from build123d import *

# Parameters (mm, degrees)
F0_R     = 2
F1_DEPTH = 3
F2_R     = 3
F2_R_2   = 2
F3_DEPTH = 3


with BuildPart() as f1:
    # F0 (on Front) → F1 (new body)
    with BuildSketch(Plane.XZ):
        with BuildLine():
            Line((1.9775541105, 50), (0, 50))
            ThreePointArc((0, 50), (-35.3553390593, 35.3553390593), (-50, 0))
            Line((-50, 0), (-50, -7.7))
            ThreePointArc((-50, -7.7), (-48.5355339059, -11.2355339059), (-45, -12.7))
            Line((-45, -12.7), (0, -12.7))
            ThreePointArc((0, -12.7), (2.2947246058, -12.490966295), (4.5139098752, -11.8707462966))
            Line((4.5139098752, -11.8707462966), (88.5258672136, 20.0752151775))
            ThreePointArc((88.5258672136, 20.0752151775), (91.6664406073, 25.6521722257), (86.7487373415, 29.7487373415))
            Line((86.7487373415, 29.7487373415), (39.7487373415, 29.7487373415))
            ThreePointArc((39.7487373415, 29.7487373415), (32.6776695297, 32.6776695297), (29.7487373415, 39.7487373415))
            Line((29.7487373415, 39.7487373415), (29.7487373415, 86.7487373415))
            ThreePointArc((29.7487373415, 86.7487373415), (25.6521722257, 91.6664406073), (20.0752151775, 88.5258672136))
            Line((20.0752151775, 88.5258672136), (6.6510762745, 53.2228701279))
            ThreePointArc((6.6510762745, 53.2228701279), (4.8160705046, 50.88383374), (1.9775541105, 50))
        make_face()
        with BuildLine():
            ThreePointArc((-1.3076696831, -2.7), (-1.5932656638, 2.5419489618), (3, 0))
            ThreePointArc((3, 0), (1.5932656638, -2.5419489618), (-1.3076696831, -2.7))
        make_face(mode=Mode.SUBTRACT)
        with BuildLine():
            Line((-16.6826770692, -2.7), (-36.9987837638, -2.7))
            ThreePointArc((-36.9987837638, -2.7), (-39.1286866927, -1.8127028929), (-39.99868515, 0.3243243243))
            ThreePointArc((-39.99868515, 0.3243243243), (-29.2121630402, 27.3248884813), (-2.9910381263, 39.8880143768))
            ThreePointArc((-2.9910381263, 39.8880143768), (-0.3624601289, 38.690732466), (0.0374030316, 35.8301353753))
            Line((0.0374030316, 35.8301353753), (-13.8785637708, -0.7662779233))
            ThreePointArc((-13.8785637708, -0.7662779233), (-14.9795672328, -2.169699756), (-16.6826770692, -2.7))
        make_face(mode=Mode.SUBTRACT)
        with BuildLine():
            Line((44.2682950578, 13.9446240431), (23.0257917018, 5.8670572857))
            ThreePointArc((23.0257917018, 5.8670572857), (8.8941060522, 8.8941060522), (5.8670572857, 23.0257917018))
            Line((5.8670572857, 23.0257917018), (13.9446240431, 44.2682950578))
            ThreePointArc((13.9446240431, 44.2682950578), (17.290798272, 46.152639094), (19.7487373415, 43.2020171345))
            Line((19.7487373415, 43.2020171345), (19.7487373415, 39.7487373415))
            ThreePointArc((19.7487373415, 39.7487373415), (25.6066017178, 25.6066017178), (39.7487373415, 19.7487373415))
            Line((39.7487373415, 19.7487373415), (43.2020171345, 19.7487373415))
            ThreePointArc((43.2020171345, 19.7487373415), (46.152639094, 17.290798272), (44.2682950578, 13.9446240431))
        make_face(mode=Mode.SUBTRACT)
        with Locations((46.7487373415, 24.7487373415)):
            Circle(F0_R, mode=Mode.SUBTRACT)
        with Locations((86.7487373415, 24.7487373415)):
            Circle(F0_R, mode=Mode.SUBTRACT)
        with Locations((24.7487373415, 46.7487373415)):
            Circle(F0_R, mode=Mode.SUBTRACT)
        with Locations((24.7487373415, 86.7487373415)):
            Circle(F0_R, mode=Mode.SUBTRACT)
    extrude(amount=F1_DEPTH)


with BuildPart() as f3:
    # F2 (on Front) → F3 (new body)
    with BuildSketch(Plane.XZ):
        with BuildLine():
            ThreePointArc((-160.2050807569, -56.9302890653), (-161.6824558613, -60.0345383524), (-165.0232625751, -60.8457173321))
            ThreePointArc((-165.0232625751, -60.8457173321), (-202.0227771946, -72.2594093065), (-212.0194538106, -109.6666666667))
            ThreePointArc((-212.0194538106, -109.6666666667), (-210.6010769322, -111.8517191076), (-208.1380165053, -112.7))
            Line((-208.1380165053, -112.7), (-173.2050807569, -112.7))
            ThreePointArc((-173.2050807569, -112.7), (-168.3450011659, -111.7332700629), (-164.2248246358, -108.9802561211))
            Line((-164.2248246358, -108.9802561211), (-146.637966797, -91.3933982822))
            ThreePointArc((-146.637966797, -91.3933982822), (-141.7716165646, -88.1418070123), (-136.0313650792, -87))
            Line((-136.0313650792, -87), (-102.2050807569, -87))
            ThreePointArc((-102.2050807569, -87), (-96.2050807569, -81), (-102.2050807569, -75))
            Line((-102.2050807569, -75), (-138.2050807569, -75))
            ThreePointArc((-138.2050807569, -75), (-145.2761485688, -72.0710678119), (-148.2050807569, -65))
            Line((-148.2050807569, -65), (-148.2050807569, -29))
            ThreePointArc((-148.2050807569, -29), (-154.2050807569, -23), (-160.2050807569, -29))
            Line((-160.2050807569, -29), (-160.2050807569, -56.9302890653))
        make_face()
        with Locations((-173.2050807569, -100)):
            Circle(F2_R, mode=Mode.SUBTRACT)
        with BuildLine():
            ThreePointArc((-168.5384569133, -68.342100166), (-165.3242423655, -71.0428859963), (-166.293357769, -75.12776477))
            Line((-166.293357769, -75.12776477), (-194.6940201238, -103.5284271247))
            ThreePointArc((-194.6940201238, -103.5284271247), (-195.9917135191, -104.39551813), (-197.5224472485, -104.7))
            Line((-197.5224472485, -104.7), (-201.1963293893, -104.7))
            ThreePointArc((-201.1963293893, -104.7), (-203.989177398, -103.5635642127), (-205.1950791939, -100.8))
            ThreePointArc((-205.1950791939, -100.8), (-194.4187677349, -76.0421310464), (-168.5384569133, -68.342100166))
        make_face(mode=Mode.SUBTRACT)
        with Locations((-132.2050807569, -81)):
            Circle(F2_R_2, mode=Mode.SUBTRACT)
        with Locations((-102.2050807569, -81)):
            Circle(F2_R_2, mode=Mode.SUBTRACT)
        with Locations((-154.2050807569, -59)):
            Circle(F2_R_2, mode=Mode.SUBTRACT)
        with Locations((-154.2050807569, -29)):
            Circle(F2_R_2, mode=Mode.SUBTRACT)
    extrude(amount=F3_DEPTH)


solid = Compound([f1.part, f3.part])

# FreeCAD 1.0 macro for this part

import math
import FreeCAD as App
import Part
import Sketcher
Q = App.Units.Quantity

doc = App.newDocument("Part")
body = doc.addObject("PartDesign::Body", "Body")

sketch1 = doc.addObject("Sketcher::SketchObject", "Sketch")
body.addObject(sketch1)
sketch1.AttachmentSupport = (doc.XZ_Plane, [""])
sketch1.MapMode = "FlatFace"
sketch1.addGeometry([
    Part.LineSegment(App.Vector(2, 50, 0), App.Vector(0, 50, 0)),
    Part.ArcOfCircle(Part.Circle(App.Vector(0, 0, 0), App.Vector(0, 0, 1), 50), math.radians(90), math.radians(180)),
    Part.LineSegment(App.Vector(-50, 0, 0), App.Vector(-50, -7.7, 0)),
    Part.ArcOfCircle(Part.Circle(App.Vector(-45, -7.7, 0), App.Vector(0, 0, 1), 5), math.radians(180), math.radians(270)),
    Part.LineSegment(App.Vector(-45, -12.7, 0), App.Vector(0, -12.7, 0)),
    Part.ArcOfCircle(Part.Circle(App.Vector(0, 0, 0), App.Vector(0, 0, 1), 12.7), math.radians(-90), math.radians(-69)),
    Part.LineSegment(App.Vector(4.5, -11.9, 0), App.Vector(88.5, 20.1, 0)),
    Part.ArcOfCircle(Part.Circle(App.Vector(86.7, 24.7, 0), App.Vector(0, 0, 1), 5), math.radians(-69), math.radians(90)),
    Part.LineSegment(App.Vector(86.7, 29.7, 0), App.Vector(39.7, 29.7, 0)),
    Part.ArcOfCircle(Part.Circle(App.Vector(39.7, 39.7, 0), App.Vector(0, 0, 1), 10), math.radians(-180), math.radians(-90)),
    Part.LineSegment(App.Vector(29.7, 39.7, 0), App.Vector(29.7, 86.7, 0)),
    Part.ArcOfCircle(Part.Circle(App.Vector(24.7, 86.7, 0), App.Vector(0, 0, 1), 5), math.radians(0), math.radians(159)),
    Part.LineSegment(App.Vector(20.1, 88.5, 0), App.Vector(6.7, 53.2, 0)),
    Part.ArcOfCircle(Part.Circle(App.Vector(2, 55, 0), App.Vector(0, 0, 1), 5), math.radians(-90), math.radians(-21)),
    Part.ArcOfCircle(Part.Circle(App.Vector(-16.7, 0.3, 0), App.Vector(0, 0, 1), 3), math.radians(-90), math.radians(-21)),
    Part.LineSegment(App.Vector(-16.7, -2.7, 0), App.Vector(-37, -2.7, 0)),
    Part.ArcOfCircle(Part.Circle(App.Vector(-37, 0.3, 0), App.Vector(0, 0, 1), 3), math.radians(180), math.radians(270)),
    Part.ArcOfCircle(Part.Circle(App.Vector(0, 0, 0), App.Vector(0, 0, 1), 40), math.radians(94), math.radians(180)),
    Part.ArcOfCircle(Part.Circle(App.Vector(-2.8, 36.9, 0), App.Vector(0, 0, 1), 3), math.radians(-21), math.radians(94)),
    Part.LineSegment(App.Vector(0, 35.8, 0), App.Vector(-13.9, -0.8, 0)),
    Part.ArcOfCircle(Part.Circle(App.Vector(0, 0, 0), App.Vector(0, 0, 1), 3), math.radians(-116), math.radians(0)),
    Part.ArcOfCircle(Part.Circle(App.Vector(0, 0, 0), App.Vector(0, 0, 1), 3), math.radians(0), math.radians(244)),
    Part.ArcOfCircle(Part.Circle(App.Vector(43.2, 16.7, 0), App.Vector(0, 0, 1), 3), math.radians(-69), math.radians(90)),
    Part.LineSegment(App.Vector(44.3, 13.9, 0), App.Vector(23, 5.9, 0)),
    Part.ArcOfCircle(Part.Circle(App.Vector(18.3, 18.3, 0), App.Vector(0, 0, 1), 13.3), math.radians(159), math.radians(291)),
    Part.LineSegment(App.Vector(5.9, 23, 0), App.Vector(13.9, 44.3, 0)),
    Part.ArcOfCircle(Part.Circle(App.Vector(16.7, 43.2, 0), App.Vector(0, 0, 1), 3), math.radians(0), math.radians(159)),
    Part.LineSegment(App.Vector(19.7, 43.2, 0), App.Vector(19.7, 39.7, 0)),
    Part.ArcOfCircle(Part.Circle(App.Vector(39.7, 39.7, 0), App.Vector(0, 0, 1), 20), math.radians(-180), math.radians(-90)),
    Part.LineSegment(App.Vector(39.7, 19.7, 0), App.Vector(43.2, 19.7, 0)),
    Part.Circle(App.Vector(46.7, 24.7, 0), App.Vector(0, 0, 1), 2),
    Part.Circle(App.Vector(86.7, 24.7, 0), App.Vector(0, 0, 1), 2),
    Part.Circle(App.Vector(24.7, 46.7, 0), App.Vector(0, 0, 1), 2),
    Part.Circle(App.Vector(24.7, 86.7, 0), App.Vector(0, 0, 1), 2),
], False)
sketch1.addConstraint([
    Sketcher.Constraint("Tangent", 0, 2, 1, 1),
    Sketcher.Constraint("Tangent", 1, 2, 2, 1),
    Sketcher.Constraint("Tangent", 2, 2, 3, 1),
    Sketcher.Constraint("Tangent", 3, 2, 4, 1),
    Sketcher.Constraint("Tangent", 4, 2, 5, 1),
    Sketcher.Constraint("Tangent", 5, 2, 6, 1),
    Sketcher.Constraint("Tangent", 6, 2, 7, 1),
    Sketcher.Constraint("Tangent", 7, 2, 8, 1),
    Sketcher.Constraint("Tangent", 8, 2, 9, 2),
    Sketcher.Constraint("Tangent", 9, 1, 10, 1),
    Sketcher.Constraint("Tangent", 10, 2, 11, 1),
    Sketcher.Constraint("Tangent", 11, 2, 12, 1),
    Sketcher.Constraint("Tangent", 12, 2, 13, 2),
    Sketcher.Constraint("Tangent", 13, 1, 0, 1),
    Sketcher.Constraint("Tangent", 14, 1, 15, 1),
    Sketcher.Constraint("Tangent", 15, 2, 16, 2),
    Sketcher.Constraint("Tangent", 16, 1, 17, 2),
    Sketcher.Constraint("Tangent", 17, 1, 18, 2),
    Sketcher.Constraint("Tangent", 18, 1, 19, 1),
    Sketcher.Constraint("Tangent", 19, 2, 14, 2),
    Sketcher.Constraint("Tangent", 20, 1, 21, 2),
    Sketcher.Constraint("Coincident", 21, 1, 20, 2),
    Sketcher.Constraint("Tangent", 22, 1, 23, 1),
    Sketcher.Constraint("Tangent", 23, 2, 24, 2),
    Sketcher.Constraint("Tangent", 24, 1, 25, 1),
    Sketcher.Constraint("Tangent", 25, 2, 26, 2),
    Sketcher.Constraint("Tangent", 26, 1, 27, 1),
    Sketcher.Constraint("Tangent", 27, 2, 28, 1),
    Sketcher.Constraint("Tangent", 28, 2, 29, 1),
    Sketcher.Constraint("Tangent", 29, 2, 22, 2),
    Sketcher.Constraint("Horizontal", 0),
    Sketcher.Constraint("Vertical", 2),
    Sketcher.Constraint("Horizontal", 4),
    Sketcher.Constraint("Horizontal", 8),
    Sketcher.Constraint("Vertical", 10),
    Sketcher.Constraint("Horizontal", 15),
    Sketcher.Constraint("Vertical", 27),
    Sketcher.Constraint("Horizontal", 29),
    Sketcher.Constraint("Coincident", 1, 3, -1, 1),
    Sketcher.Constraint("Coincident", 5, 3, -1, 1),
    Sketcher.Constraint("Coincident", 17, 3, -1, 1),
    Sketcher.Constraint("Coincident", 20, 3, -1, 1),
    Sketcher.Constraint("Coincident", 28, 3, 9, 3),
    Sketcher.Constraint("Coincident", 31, 3, 7, 3),
    Sketcher.Constraint("Coincident", 33, 3, 11, 3),
    Sketcher.Constraint("Equal", 3, 7),
    Sketcher.Constraint("Equal", 7, 11),
    Sketcher.Constraint("Equal", 11, 13),
    Sketcher.Constraint("Equal", 14, 16),
    Sketcher.Constraint("Equal", 16, 18),
    Sketcher.Constraint("Equal", 18, 20),
    Sketcher.Constraint("Equal", 21, 22),
    Sketcher.Constraint("Equal", 22, 26),
    Sketcher.Constraint("Equal", 30, 31),
    Sketcher.Constraint("Equal", 31, 32),
    Sketcher.Constraint("Equal", 32, 33),
    Sketcher.Constraint("PointOnObject", 21, 1, -1),
    Sketcher.Constraint("Parallel", 12, 19),
    Sketcher.Constraint("Parallel", 6, 23),
    Sketcher.Constraint("Parallel", 19, 25),
    Sketcher.Constraint("Horizontal", 7, 3, 30, 3),
    Sketcher.Constraint("Horizontal", 15, 2, 20, 1),
    Sketcher.Constraint("Vertical", 11, 3, 32, 3),
    Sketcher.Constraint("Equal", 8, 10),
    Sketcher.Constraint("Equal", 29, 27),
    Sketcher.Constraint("Equal", 23, 25),
    Sketcher.Constraint("Diameter", 30, Q("4 mm")),
    Sketcher.Constraint("Radius", 1, Q("50 mm")),
    Sketcher.Constraint("Radius", 3, Q("5 mm")),
    Sketcher.Constraint("Radius", 9, Q("10 mm")),
    Sketcher.Constraint("Radius", 14, Q("3 mm")),
    Sketcher.Constraint("Radius", 17, Q("40 mm")),
    Sketcher.Constraint("Radius", 28, Q("20 mm")),
    Sketcher.Constraint("Radius", 5, Q("12.7 mm")),
    Sketcher.Constraint("Radius", 24, Q("13.3 mm")),
    Sketcher.Constraint("DistanceX", 8, 2, 8, 1, Q("47 mm")),
    Sketcher.Constraint("DistanceY", 3, 3, 14, 3, Q("8 mm")),
    Sketcher.Constraint("DistanceX", 9, 3, 30, 3, Q("7 mm")),
    Sketcher.Constraint("DistanceY", 9, 3, 32, 3, Q("7 mm")),
    Sketcher.Constraint("DistanceX", 29, 1, 29, 2, Q("3.45328 mm")),
    Sketcher.Constraint("Distance", 23, Q("22.726439 mm")),
    Sketcher.Constraint("DistanceX", 0, 2, 0, 1, Q("1.977554 mm")),
    Sketcher.Constraint("DistanceX", 15, 2, 15, 1, Q("20.316107 mm")),
])
pad1 = doc.addObject("PartDesign::Pad", "Pad")
body.addObject(pad1)
pad1.Profile = sketch1
pad1.Length = 3
body2 = doc.addObject("PartDesign::Body", "Body001")

sketch2 = doc.addObject("Sketcher::SketchObject", "Sketch001")
body2.addObject(sketch2)
sketch2.AttachmentSupport = (doc.getObject("XZ_Plane001"), [""])
sketch2.MapMode = "FlatFace"
sketch2.addGeometry([
    Part.ArcOfCircle(Part.Circle(App.Vector(-164.2, -56.9, 0), App.Vector(0, 0, 1), 4), math.radians(-102), math.radians(0)),
    Part.ArcOfCircle(Part.Circle(App.Vector(-173.2, -100, 0), App.Vector(0, 0, 1), 40), math.radians(78), math.radians(194)),
    Part.ArcOfCircle(Part.Circle(App.Vector(-208.1, -108.7, 0), App.Vector(0, 0, 1), 4), math.radians(-166), math.radians(-90)),
    Part.LineSegment(App.Vector(-208.1, -112.7, 0), App.Vector(-173.2, -112.7, 0)),
    Part.ArcOfCircle(Part.Circle(App.Vector(-173.2, -100, 0), App.Vector(0, 0, 1), 12.7), math.radians(-90), math.radians(-45)),
    Part.LineSegment(App.Vector(-164.2, -109, 0), App.Vector(-146.6, -91.4, 0)),
    Part.ArcOfCircle(Part.Circle(App.Vector(-136, -102, 0), App.Vector(0, 0, 1), 15), math.radians(90), math.radians(135)),
    Part.LineSegment(App.Vector(-136, -87, 0), App.Vector(-102.2, -87, 0)),
    Part.ArcOfCircle(Part.Circle(App.Vector(-102.2, -81, 0), App.Vector(0, 0, 1), 6), math.radians(-90), math.radians(90)),
    Part.LineSegment(App.Vector(-102.2, -75, 0), App.Vector(-138.2, -75, 0)),
    Part.ArcOfCircle(Part.Circle(App.Vector(-138.2, -65, 0), App.Vector(0, 0, 1), 10), math.radians(180), math.radians(270)),
    Part.LineSegment(App.Vector(-148.2, -65, 0), App.Vector(-148.2, -29, 0)),
    Part.ArcOfCircle(Part.Circle(App.Vector(-154.2, -29, 0), App.Vector(0, 0, 1), 6), math.radians(0), math.radians(180)),
    Part.LineSegment(App.Vector(-160.2, -29, 0), App.Vector(-160.2, -56.9, 0)),
    Part.ArcOfCircle(Part.Circle(App.Vector(-173.2, -100, 0), App.Vector(0, 0, 1), 32), math.radians(82), math.radians(181)),
    Part.ArcOfCircle(Part.Circle(App.Vector(-169.1, -72.3, 0), App.Vector(0, 0, 1), 4), math.radians(-45), math.radians(82)),
    Part.LineSegment(App.Vector(-166.3, -75.1, 0), App.Vector(-194.7, -103.5, 0)),
    Part.ArcOfCircle(Part.Circle(App.Vector(-197.5, -100.7, 0), App.Vector(0, 0, 1), 4), math.radians(-90), math.radians(-45)),
    Part.LineSegment(App.Vector(-197.5, -104.7, 0), App.Vector(-201.2, -104.7, 0)),
    Part.ArcOfCircle(Part.Circle(App.Vector(-201.2, -100.7, 0), App.Vector(0, 0, 1), 4), math.radians(-179), math.radians(-90)),
    Part.Circle(App.Vector(-173.2, -100, 0), App.Vector(0, 0, 1), 3),
    Part.Circle(App.Vector(-132.2, -81, 0), App.Vector(0, 0, 1), 2),
    Part.Circle(App.Vector(-102.2, -81, 0), App.Vector(0, 0, 1), 2),
    Part.Circle(App.Vector(-154.2, -59, 0), App.Vector(0, 0, 1), 2),
    Part.Circle(App.Vector(-154.2, -29, 0), App.Vector(0, 0, 1), 2),
], False)
sketch2.addConstraint([
    Sketcher.Constraint("Tangent", 0, 1, 1, 1),
    Sketcher.Constraint("Tangent", 1, 2, 2, 1),
    Sketcher.Constraint("Tangent", 2, 2, 3, 1),
    Sketcher.Constraint("Tangent", 3, 2, 4, 1),
    Sketcher.Constraint("Tangent", 4, 2, 5, 1),
    Sketcher.Constraint("Tangent", 5, 2, 6, 2),
    Sketcher.Constraint("Tangent", 6, 1, 7, 1),
    Sketcher.Constraint("Tangent", 7, 2, 8, 1),
    Sketcher.Constraint("Tangent", 8, 2, 9, 1),
    Sketcher.Constraint("Tangent", 9, 2, 10, 2),
    Sketcher.Constraint("Tangent", 10, 1, 11, 1),
    Sketcher.Constraint("Tangent", 11, 2, 12, 1),
    Sketcher.Constraint("Tangent", 12, 2, 13, 1),
    Sketcher.Constraint("Tangent", 13, 2, 0, 2),
    Sketcher.Constraint("Tangent", 14, 1, 15, 2),
    Sketcher.Constraint("Tangent", 15, 1, 16, 1),
    Sketcher.Constraint("Tangent", 16, 2, 17, 2),
    Sketcher.Constraint("Tangent", 17, 1, 18, 1),
    Sketcher.Constraint("Tangent", 18, 2, 19, 2),
    Sketcher.Constraint("Tangent", 19, 1, 14, 2),
    Sketcher.Constraint("Horizontal", 3),
    Sketcher.Constraint("Horizontal", 7),
    Sketcher.Constraint("Horizontal", 9),
    Sketcher.Constraint("Vertical", 11),
    Sketcher.Constraint("Vertical", 13),
    Sketcher.Constraint("Horizontal", 18),
    Sketcher.Constraint("Coincident", 4, 3, 1, 3),
    Sketcher.Constraint("Coincident", 14, 3, 1, 3),
    Sketcher.Constraint("Coincident", 20, 3, 1, 3),
    Sketcher.Constraint("Coincident", 22, 3, 8, 3),
    Sketcher.Constraint("Coincident", 24, 3, 12, 3),
    Sketcher.Constraint("Equal", 0, 2),
    Sketcher.Constraint("Equal", 8, 12),
    Sketcher.Constraint("Equal", 2, 15),
    Sketcher.Constraint("Equal", 15, 17),
    Sketcher.Constraint("Equal", 17, 19),
    Sketcher.Constraint("Equal", 21, 22),
    Sketcher.Constraint("Equal", 22, 23),
    Sketcher.Constraint("Equal", 23, 24),
    Sketcher.Constraint("Parallel", 5, 16),
    Sketcher.Constraint("Horizontal", 8, 3, 21, 3),
    Sketcher.Constraint("Vertical", 12, 3, 23, 3),
    Sketcher.Constraint("Equal", 9, 11),
    Sketcher.Constraint("Diameter", 20, Q("6 mm")),
    Sketcher.Constraint("Diameter", 21, Q("4 mm")),
    Sketcher.Constraint("Radius", 0, Q("4 mm")),
    Sketcher.Constraint("Radius", 1, Q("40 mm")),
    Sketcher.Constraint("Radius", 6, Q("15 mm")),
    Sketcher.Constraint("Radius", 8, Q("6 mm")),
    Sketcher.Constraint("Radius", 10, Q("10 mm")),
    Sketcher.Constraint("Radius", 14, Q("32 mm")),
    Sketcher.Constraint("Radius", 4, Q("12.7 mm")),
    Sketcher.Constraint("DistanceX", 9, 2, 9, 1, Q("36 mm")),
    Sketcher.Constraint("Angle", 5, Q("45 deg")),
    Sketcher.Constraint("DistanceY", 1, 3, -1, 1, Q("100 mm")),
    Sketcher.Constraint("DistanceY", 6, 3, -1, 1, Q("102 mm")),
    Sketcher.Constraint("DistanceY", 23, 3, -1, 1, Q("59 mm")),
    Sketcher.Constraint("DistanceX", 1, 3, 0, 3, Q("9 mm")),
    Sketcher.Constraint("DistanceY", 2, 3, 17, 3, Q("8 mm")),
    Sketcher.Constraint("DistanceX", 10, 3, 21, 3, Q("6 mm")),
    Sketcher.Constraint("Distance", 16, Q("40.164602 mm")),
    Sketcher.Constraint("DistanceX", 0, 3, -1, 1, Q("164.205081 mm")),
])
pad2 = doc.addObject("PartDesign::Pad", "Pad001")
body2.addObject(pad2)
pad2.Profile = sketch2
pad2.Length = 3

doc.recompute()
